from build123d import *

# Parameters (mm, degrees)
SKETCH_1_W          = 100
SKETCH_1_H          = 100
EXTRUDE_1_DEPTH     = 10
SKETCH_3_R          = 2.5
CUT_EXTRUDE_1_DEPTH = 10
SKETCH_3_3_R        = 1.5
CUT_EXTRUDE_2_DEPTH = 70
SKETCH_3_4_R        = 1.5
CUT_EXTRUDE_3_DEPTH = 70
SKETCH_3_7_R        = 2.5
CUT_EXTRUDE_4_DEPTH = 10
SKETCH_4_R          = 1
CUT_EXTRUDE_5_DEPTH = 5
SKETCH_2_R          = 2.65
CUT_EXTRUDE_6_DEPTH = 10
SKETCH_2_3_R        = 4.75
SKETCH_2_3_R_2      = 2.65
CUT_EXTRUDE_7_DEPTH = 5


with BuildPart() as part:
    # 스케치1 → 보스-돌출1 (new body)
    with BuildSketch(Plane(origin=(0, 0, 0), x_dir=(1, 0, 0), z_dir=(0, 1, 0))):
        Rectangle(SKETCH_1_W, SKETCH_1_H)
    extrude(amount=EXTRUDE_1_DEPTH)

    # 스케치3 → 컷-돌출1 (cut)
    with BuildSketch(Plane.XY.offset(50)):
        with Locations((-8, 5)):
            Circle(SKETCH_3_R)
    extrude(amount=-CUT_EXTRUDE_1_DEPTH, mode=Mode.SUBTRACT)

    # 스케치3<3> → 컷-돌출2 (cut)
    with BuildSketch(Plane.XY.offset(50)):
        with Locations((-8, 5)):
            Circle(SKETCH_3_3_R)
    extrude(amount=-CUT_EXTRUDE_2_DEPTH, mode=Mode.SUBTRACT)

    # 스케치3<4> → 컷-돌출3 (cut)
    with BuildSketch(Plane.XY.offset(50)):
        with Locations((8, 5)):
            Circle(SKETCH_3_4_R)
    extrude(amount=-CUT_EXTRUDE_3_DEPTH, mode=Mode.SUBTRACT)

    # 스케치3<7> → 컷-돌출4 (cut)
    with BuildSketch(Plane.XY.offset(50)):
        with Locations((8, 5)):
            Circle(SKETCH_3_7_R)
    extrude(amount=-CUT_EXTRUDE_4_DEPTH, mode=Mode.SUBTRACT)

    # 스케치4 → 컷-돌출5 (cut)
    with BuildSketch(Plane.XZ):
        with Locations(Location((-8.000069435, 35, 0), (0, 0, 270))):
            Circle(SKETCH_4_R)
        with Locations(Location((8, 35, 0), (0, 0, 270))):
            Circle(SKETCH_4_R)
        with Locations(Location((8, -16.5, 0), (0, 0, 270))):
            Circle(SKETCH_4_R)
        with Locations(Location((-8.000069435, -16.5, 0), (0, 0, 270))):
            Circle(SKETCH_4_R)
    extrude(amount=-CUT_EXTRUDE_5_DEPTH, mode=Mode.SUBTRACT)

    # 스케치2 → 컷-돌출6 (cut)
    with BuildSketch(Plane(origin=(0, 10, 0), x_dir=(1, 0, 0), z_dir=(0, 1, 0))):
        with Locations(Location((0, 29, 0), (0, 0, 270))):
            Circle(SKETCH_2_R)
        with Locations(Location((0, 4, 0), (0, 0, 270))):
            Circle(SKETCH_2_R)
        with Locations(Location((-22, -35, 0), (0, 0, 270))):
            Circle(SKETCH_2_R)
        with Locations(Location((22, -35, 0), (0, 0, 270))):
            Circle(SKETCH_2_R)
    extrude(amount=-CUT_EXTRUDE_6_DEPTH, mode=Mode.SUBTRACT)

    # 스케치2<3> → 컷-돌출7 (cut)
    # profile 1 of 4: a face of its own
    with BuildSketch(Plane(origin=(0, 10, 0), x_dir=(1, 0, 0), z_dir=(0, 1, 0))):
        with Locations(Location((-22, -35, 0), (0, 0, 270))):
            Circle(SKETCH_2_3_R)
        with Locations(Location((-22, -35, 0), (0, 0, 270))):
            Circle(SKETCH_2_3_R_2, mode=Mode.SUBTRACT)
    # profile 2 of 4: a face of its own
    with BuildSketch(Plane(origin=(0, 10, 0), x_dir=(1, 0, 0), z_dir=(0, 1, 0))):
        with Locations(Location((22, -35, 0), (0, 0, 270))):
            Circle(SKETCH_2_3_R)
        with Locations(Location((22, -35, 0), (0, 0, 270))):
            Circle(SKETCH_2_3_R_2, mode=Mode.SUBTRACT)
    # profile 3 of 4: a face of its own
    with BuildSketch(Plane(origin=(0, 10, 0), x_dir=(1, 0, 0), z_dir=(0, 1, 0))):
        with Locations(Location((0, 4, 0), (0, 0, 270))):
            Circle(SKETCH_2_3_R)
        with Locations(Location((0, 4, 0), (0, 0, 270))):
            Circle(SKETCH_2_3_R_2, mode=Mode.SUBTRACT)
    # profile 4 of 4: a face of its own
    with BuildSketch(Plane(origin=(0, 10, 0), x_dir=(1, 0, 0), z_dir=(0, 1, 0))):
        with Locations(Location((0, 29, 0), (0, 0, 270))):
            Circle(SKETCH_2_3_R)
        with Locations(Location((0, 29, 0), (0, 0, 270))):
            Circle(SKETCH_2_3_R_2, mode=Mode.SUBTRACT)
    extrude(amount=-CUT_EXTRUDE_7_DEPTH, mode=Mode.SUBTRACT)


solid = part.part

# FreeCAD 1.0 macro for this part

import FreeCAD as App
import Part
import Sketcher

doc = App.newDocument("Part")
body = doc.addObject("PartDesign::Body", "Body")

# Sketch on XZ plane
sketch1 = doc.addObject("Sketcher::SketchObject", "Sketch")
body.addObject(sketch1)
sketch1.AttachmentSupport = (doc.XZ_Plane, [""])
sketch1.MapMode = "FlatFace"
sketch1.addGeometry(Part.LineSegment(App.Vector(-50, -50, 0), App.Vector(-50, 50, 0)), False)
sketch1.addGeometry(Part.LineSegment(App.Vector(-50, 50, 0), App.Vector(50, 50, 0)), False)
sketch1.addGeometry(Part.LineSegment(App.Vector(50, 50, 0), App.Vector(50, -50, 0)), False)
sketch1.addGeometry(Part.LineSegment(App.Vector(50, -50, 0), App.Vector(-50, -50, 0)), False)
sketch1.addConstraint(Sketcher.Constraint("Coincident", 0, 2, 1, 1))
sketch1.addConstraint(Sketcher.Constraint("Coincident", 1, 2, 2, 1))
sketch1.addConstraint(Sketcher.Constraint("Coincident", 2, 2, 3, 1))
sketch1.addConstraint(Sketcher.Constraint("Coincident", 3, 2, 0, 1))
sketch1.addConstraint(Sketcher.Constraint("Vertical", 0))
sketch1.addConstraint(Sketcher.Constraint("Horizontal", 1))
sketch1.addConstraint(Sketcher.Constraint("Vertical", 2))
sketch1.addConstraint(Sketcher.Constraint("Horizontal", 3))
sketch1.addConstraint(Sketcher.Constraint("Symmetric", 0, 2, 2, 2, -1, 1))
sketch1.addConstraint(Sketcher.Constraint("Equal", 3, 0))
sketch1.addConstraint(Sketcher.Constraint("DistanceX", 1, 1, 1, 2, 100.0))
pad1 = doc.addObject("PartDesign::Pad", "Pad")
body.addObject(pad1)
pad1.Profile = sketch1
pad1.Length = 10
pad1.Reversed = True

# Sketch on XY plane
sketch2 = doc.addObject("Sketcher::SketchObject", "Sketch001")
body.addObject(sketch2)
sketch2.AttachmentSupport = (doc.XY_Plane, [""])
sketch2.MapMode = "FlatFace"
sketch2.AttachmentOffset = App.Placement(App.Vector(0, 0, 50), App.Rotation())
sketch2.addGeometry(Part.Circle(App.Vector(-8, 5, 0), App.Vector(0, 0, 1), 2.5), False)
sketch2.addConstraint(Sketcher.Constraint("Diameter", 0, 5.0))
sketch2.addConstraint(Sketcher.Constraint("DistanceX", 0, 3, -1, 1, 8.0))
sketch2.addConstraint(Sketcher.Constraint("DistanceY", -1, 1, 0, 3, 5.0))
pocket1 = doc.addObject("PartDesign::Pocket", "Pocket")
body.addObject(pocket1)
pocket1.Profile = sketch2
pocket1.Length = 10

# Sketch on XY plane
sketch3 = doc.addObject("Sketcher::SketchObject", "Sketch002")
body.addObject(sketch3)
sketch3.AttachmentSupport = (doc.XY_Plane, [""])
sketch3.MapMode = "FlatFace"
sketch3.AttachmentOffset = App.Placement(App.Vector(0, 0, 50), App.Rotation())
sketch3.addGeometry(Part.Circle(App.Vector(-8, 5, 0), App.Vector(0, 0, 1), 1.5), False)
sketch3.addConstraint(Sketcher.Constraint("Diameter", 0, 3.0))
sketch3.addConstraint(Sketcher.Constraint("DistanceX", 0, 3, -1, 1, 8.0))
sketch3.addConstraint(Sketcher.Constraint("DistanceY", -1, 1, 0, 3, 5.0))
pocket2 = doc.addObject("PartDesign::Pocket", "Pocket001")
body.addObject(pocket2)
pocket2.Profile = sketch3
pocket2.Length = 70

# Sketch on XY plane
sketch4 = doc.addObject("Sketcher::SketchObject", "Sketch003")
body.addObject(sketch4)
sketch4.AttachmentSupport = (doc.XY_Plane, [""])
sketch4.MapMode = "FlatFace"
sketch4.AttachmentOffset = App.Placement(App.Vector(0, 0, 50), App.Rotation())
sketch4.addGeometry(Part.Circle(App.Vector(8, 5, 0), App.Vector(0, 0, 1), 1.5), False)
sketch4.addConstraint(Sketcher.Constraint("Diameter", 0, 3.0))
sketch4.addConstraint(Sketcher.Constraint("DistanceX", -1, 1, 0, 3, 8.0))
sketch4.addConstraint(Sketcher.Constraint("DistanceY", -1, 1, 0, 3, 5.0))
pocket3 = doc.addObject("PartDesign::Pocket", "Pocket002")
body.addObject(pocket3)
pocket3.Profile = sketch4
pocket3.Length = 70

# Sketch on XY plane
sketch5 = doc.addObject("Sketcher::SketchObject", "Sketch004")
body.addObject(sketch5)
sketch5.AttachmentSupport = (doc.XY_Plane, [""])
sketch5.MapMode = "FlatFace"
sketch5.AttachmentOffset = App.Placement(App.Vector(0, 0, 50), App.Rotation())
sketch5.addGeometry(Part.Circle(App.Vector(8, 5, 0), App.Vector(0, 0, 1), 2.5), False)
sketch5.addConstraint(Sketcher.Constraint("Diameter", 0, 5.0))
sketch5.addConstraint(Sketcher.Constraint("DistanceX", -1, 1, 0, 3, 8.0))
sketch5.addConstraint(Sketcher.Constraint("DistanceY", -1, 1, 0, 3, 5.0))
pocket4 = doc.addObject("PartDesign::Pocket", "Pocket003")
body.addObject(pocket4)
pocket4.Profile = sketch5
pocket4.Length = 10

# Sketch on XZ plane
sketch6 = doc.addObject("Sketcher::SketchObject", "Sketch005")
body.addObject(sketch6)
sketch6.AttachmentSupport = (doc.XZ_Plane, [""])
sketch6.MapMode = "FlatFace"
sketch6.addGeometry(Part.Circle(App.Vector(-8, 35, 0), App.Vector(0, 0, 1), 1), False)
sketch6.addGeometry(Part.Circle(App.Vector(8, 35, 0), App.Vector(0, 0, 1), 1), False)
sketch6.addGeometry(Part.Circle(App.Vector(8, -16.5, 0), App.Vector(0, 0, 1), 1), False)
sketch6.addGeometry(Part.Circle(App.Vector(-8, -16.5, 0), App.Vector(0, 0, 1), 1), False)
sketch6.addConstraint(Sketcher.Constraint("Equal", 0, 1))
sketch6.addConstraint(Sketcher.Constraint("Equal", 1, 2))
sketch6.addConstraint(Sketcher.Constraint("Equal", 2, 3))
sketch6.addConstraint(Sketcher.Constraint("Horizontal", 0, 3, 1, 3))
sketch6.addConstraint(Sketcher.Constraint("Horizontal", 2, 3, 3, 3))
sketch6.addConstraint(Sketcher.Constraint("Vertical", 1, 3, 2, 3))
sketch6.addConstraint(Sketcher.Constraint("Vertical", 0, 3, 3, 3))
sketch6.addConstraint(Sketcher.Constraint("Diameter", 0, 2.0))
sketch6.addConstraint(Sketcher.Constraint("DistanceY", -1, 1, 0, 3, 35.0))
sketch6.addConstraint(Sketcher.Constraint("DistanceX", -1, 1, 1, 3, 8.0))
sketch6.addConstraint(Sketcher.Constraint("DistanceY", 2, 3, -1, 1, 16.5))
sketch6.addConstraint(Sketcher.Constraint("DistanceX", 0, 3, -1, 1, 8.000069))
pocket5 = doc.addObject("PartDesign::Pocket", "Pocket004")
body.addObject(pocket5)
pocket5.Profile = sketch6
pocket5.Length = 5

# Sketch on XZ plane
sketch7 = doc.addObject("Sketcher::SketchObject", "Sketch006")
body.addObject(sketch7)
sketch7.AttachmentSupport = (doc.XZ_Plane, [""])
sketch7.MapMode = "FlatFace"
sketch7.AttachmentOffset = App.Placement(App.Vector(0, 0, -10), App.Rotation())
sketch7.addGeometry(Part.Circle(App.Vector(0, -29, 0), App.Vector(0, 0, 1), 2.6), False)
sketch7.addGeometry(Part.Circle(App.Vector(0, -4, 0), App.Vector(0, 0, 1), 2.6), False)
sketch7.addGeometry(Part.Circle(App.Vector(-22, 35, 0), App.Vector(0, 0, 1), 2.6), False)
sketch7.addGeometry(Part.Circle(App.Vector(22, 35, 0), App.Vector(0, 0, 1), 2.6), False)
sketch7.addConstraint(Sketcher.Constraint("Equal", 0, 1))
sketch7.addConstraint(Sketcher.Constraint("Equal", 1, 2))
sketch7.addConstraint(Sketcher.Constraint("Equal", 2, 3))
sketch7.addConstraint(Sketcher.Constraint("Symmetric", 2, 3, 3, 3, -2))
sketch7.addConstraint(Sketcher.Constraint("PointOnObject", 0, 3, -2))
sketch7.addConstraint(Sketcher.Constraint("PointOnObject", 1, 3, -2))
sketch7.addConstraint(Sketcher.Constraint("Diameter", 0, 5.3))
sketch7.addConstraint(Sketcher.Constraint("DistanceY", 0, 3, -1, 1, 29.0))
sketch7.addConstraint(Sketcher.Constraint("DistanceY", 1, 3, -1, 1, 4.0))
sketch7.addConstraint(Sketcher.Constraint("DistanceX", 2, 3, -1, 1, 22.0))
sketch7.addConstraint(Sketcher.Constraint("DistanceY", -1, 1, 2, 3, 35.0))
pocket6 = doc.addObject("PartDesign::Pocket", "Pocket005")
body.addObject(pocket6)
pocket6.Profile = sketch7
pocket6.Length = 10
pocket6.Reversed = True

# Sketch on XZ plane
sketch8 = doc.addObject("Sketcher::SketchObject", "Sketch007")
body.addObject(sketch8)
sketch8.AttachmentSupport = (doc.XZ_Plane, [""])
sketch8.MapMode = "FlatFace"
sketch8.AttachmentOffset = App.Placement(App.Vector(0, 0, -10), App.Rotation())
sketch8.addGeometry(Part.Circle(App.Vector(-22, 35, 0), App.Vector(0, 0, 1), 4.8), False)
sketch8.addGeometry(Part.Circle(App.Vector(-22, 35, 0), App.Vector(0, 0, 1), 2.6), False)
sketch8.addGeometry(Part.Circle(App.Vector(22, 35, 0), App.Vector(0, 0, 1), 4.8), False)
sketch8.addGeometry(Part.Circle(App.Vector(22, 35, 0), App.Vector(0, 0, 1), 2.6), False)
sketch8.addGeometry(Part.Circle(App.Vector(0, -4, 0), App.Vector(0, 0, 1), 4.8), False)
sketch8.addGeometry(Part.Circle(App.Vector(0, -4, 0), App.Vector(0, 0, 1), 2.6), False)
sketch8.addGeometry(Part.Circle(App.Vector(0, -29, 0), App.Vector(0, 0, 1), 4.8), False)
sketch8.addGeometry(Part.Circle(App.Vector(0, -29, 0), App.Vector(0, 0, 1), 2.6), False)
sketch8.addConstraint(Sketcher.Constraint("Coincident", 1, 3, 0, 3))
sketch8.addConstraint(Sketcher.Constraint("Coincident", 3, 3, 2, 3))
sketch8.addConstraint(Sketcher.Constraint("Coincident", 5, 3, 4, 3))
sketch8.addConstraint(Sketcher.Constraint("Coincident", 7, 3, 6, 3))
sketch8.addConstraint(Sketcher.Constraint("Equal", 0, 2))
sketch8.addConstraint(Sketcher.Constraint("Equal", 1, 3))
sketch8.addConstraint(Sketcher.Constraint("Equal", 2, 4))
sketch8.addConstraint(Sketcher.Constraint("Equal", 3, 5))
sketch8.addConstraint(Sketcher.Constraint("Equal", 4, 6))
sketch8.addConstraint(Sketcher.Constraint("Equal", 5, 7))
sketch8.addConstraint(Sketcher.Constraint("Symmetric", 0, 3, 2, 3, -2))
sketch8.addConstraint(Sketcher.Constraint("PointOnObject", 4, 3, -2))
sketch8.addConstraint(Sketcher.Constraint("PointOnObject", 6, 3, -2))
sketch8.addConstraint(Sketcher.Constraint("Diameter", 0, 9.5))
sketch8.addConstraint(Sketcher.Constraint("Diameter", 1, 5.3))
sketch8.addConstraint(Sketcher.Constraint("DistanceX", 0, 3, -1, 1, 22.0))
sketch8.addConstraint(Sketcher.Constraint("DistanceY", -1, 1, 0, 3, 35.0))
sketch8.addConstraint(Sketcher.Constraint("DistanceY", 4, 3, -1, 1, 4.0))
sketch8.addConstraint(Sketcher.Constraint("DistanceY", 6, 3, -1, 1, 29.0))
pocket7 = doc.addObject("PartDesign::Pocket", "Pocket006")
body.addObject(pocket7)
pocket7.Profile = sketch8
pocket7.Length = 5
pocket7.Reversed = True

doc.recompute()
